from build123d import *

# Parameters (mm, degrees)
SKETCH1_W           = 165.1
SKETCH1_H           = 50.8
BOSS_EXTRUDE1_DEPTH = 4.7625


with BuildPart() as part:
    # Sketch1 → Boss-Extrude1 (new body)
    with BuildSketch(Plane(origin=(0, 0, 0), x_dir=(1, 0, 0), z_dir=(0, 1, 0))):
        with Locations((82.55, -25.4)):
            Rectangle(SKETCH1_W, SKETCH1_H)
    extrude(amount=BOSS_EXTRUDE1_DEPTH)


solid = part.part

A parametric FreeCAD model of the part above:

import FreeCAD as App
import Part
import Sketcher
Q = App.Units.Quantity

doc = App.newDocument("Part")
params = doc.addObject("Spreadsheet::Sheet", "Params")
for row, (alias, value) in enumerate([
    ("sketch1_height", "2 in"),
    ("sketch1_width", "6.5 in"),
    ("pad1_length", "0.1875 in"),
], start=1):
    params.set(f"A{row}", alias)
    params.set(f"B{row}", "=" + value)
    params.setAlias(f"B{row}", alias)

body = doc.addObject("PartDesign::Body", "Body")

# Sketch on XZ plane
sketch1 = doc.addObject("Sketcher::SketchObject", "Sketch")
body.addObject(sketch1)
sketch1.AttachmentSupport = (doc.XZ_Plane, [""])
sketch1.MapMode = "FlatFace"
sketch1.addGeometry([
    Part.LineSegment(App.Vector(0, 0, 0), App.Vector(0, 51, 0)),
    Part.LineSegment(App.Vector(0, 51, 0), App.Vector(165, 51, 0)),
    Part.LineSegment(App.Vector(165, 51, 0), App.Vector(165, 0, 0)),
    Part.LineSegment(App.Vector(165, 0, 0), App.Vector(0, 0, 0)),
], False)
sketch1.addConstraint([
    Sketcher.Constraint("Coincident", 0, 2, 1, 1),
    Sketcher.Constraint("Coincident", 1, 2, 2, 1),
    Sketcher.Constraint("Coincident", 2, 2, 3, 1),
    Sketcher.Constraint("Coincident", 3, 2, 0, 1),
    Sketcher.Constraint("Vertical", 0),
    Sketcher.Constraint("Horizontal", 1),
    Sketcher.Constraint("Vertical", 2),
    Sketcher.Constraint("Horizontal", 3),
    Sketcher.Constraint("Coincident", 3, 2, -1, 1),
    Sketcher.Constraint("DistanceY", 0, 1, 0, 2, Q("2 in")),
    Sketcher.Constraint("DistanceX", 1, 1, 1, 2, Q("6.5 in")),
])
sketch1.setExpression("Constraints[9]", "Params.sketch1_height")
sketch1.setExpression("Constraints[10]", "Params.sketch1_width")
pad1 = doc.addObject("PartDesign::Pad", "Pad")
body.addObject(pad1)
pad1.Profile = sketch1
pad1.setExpression("Length", "Params.pad1_length")
pad1.Reversed = True

doc.recompute()
